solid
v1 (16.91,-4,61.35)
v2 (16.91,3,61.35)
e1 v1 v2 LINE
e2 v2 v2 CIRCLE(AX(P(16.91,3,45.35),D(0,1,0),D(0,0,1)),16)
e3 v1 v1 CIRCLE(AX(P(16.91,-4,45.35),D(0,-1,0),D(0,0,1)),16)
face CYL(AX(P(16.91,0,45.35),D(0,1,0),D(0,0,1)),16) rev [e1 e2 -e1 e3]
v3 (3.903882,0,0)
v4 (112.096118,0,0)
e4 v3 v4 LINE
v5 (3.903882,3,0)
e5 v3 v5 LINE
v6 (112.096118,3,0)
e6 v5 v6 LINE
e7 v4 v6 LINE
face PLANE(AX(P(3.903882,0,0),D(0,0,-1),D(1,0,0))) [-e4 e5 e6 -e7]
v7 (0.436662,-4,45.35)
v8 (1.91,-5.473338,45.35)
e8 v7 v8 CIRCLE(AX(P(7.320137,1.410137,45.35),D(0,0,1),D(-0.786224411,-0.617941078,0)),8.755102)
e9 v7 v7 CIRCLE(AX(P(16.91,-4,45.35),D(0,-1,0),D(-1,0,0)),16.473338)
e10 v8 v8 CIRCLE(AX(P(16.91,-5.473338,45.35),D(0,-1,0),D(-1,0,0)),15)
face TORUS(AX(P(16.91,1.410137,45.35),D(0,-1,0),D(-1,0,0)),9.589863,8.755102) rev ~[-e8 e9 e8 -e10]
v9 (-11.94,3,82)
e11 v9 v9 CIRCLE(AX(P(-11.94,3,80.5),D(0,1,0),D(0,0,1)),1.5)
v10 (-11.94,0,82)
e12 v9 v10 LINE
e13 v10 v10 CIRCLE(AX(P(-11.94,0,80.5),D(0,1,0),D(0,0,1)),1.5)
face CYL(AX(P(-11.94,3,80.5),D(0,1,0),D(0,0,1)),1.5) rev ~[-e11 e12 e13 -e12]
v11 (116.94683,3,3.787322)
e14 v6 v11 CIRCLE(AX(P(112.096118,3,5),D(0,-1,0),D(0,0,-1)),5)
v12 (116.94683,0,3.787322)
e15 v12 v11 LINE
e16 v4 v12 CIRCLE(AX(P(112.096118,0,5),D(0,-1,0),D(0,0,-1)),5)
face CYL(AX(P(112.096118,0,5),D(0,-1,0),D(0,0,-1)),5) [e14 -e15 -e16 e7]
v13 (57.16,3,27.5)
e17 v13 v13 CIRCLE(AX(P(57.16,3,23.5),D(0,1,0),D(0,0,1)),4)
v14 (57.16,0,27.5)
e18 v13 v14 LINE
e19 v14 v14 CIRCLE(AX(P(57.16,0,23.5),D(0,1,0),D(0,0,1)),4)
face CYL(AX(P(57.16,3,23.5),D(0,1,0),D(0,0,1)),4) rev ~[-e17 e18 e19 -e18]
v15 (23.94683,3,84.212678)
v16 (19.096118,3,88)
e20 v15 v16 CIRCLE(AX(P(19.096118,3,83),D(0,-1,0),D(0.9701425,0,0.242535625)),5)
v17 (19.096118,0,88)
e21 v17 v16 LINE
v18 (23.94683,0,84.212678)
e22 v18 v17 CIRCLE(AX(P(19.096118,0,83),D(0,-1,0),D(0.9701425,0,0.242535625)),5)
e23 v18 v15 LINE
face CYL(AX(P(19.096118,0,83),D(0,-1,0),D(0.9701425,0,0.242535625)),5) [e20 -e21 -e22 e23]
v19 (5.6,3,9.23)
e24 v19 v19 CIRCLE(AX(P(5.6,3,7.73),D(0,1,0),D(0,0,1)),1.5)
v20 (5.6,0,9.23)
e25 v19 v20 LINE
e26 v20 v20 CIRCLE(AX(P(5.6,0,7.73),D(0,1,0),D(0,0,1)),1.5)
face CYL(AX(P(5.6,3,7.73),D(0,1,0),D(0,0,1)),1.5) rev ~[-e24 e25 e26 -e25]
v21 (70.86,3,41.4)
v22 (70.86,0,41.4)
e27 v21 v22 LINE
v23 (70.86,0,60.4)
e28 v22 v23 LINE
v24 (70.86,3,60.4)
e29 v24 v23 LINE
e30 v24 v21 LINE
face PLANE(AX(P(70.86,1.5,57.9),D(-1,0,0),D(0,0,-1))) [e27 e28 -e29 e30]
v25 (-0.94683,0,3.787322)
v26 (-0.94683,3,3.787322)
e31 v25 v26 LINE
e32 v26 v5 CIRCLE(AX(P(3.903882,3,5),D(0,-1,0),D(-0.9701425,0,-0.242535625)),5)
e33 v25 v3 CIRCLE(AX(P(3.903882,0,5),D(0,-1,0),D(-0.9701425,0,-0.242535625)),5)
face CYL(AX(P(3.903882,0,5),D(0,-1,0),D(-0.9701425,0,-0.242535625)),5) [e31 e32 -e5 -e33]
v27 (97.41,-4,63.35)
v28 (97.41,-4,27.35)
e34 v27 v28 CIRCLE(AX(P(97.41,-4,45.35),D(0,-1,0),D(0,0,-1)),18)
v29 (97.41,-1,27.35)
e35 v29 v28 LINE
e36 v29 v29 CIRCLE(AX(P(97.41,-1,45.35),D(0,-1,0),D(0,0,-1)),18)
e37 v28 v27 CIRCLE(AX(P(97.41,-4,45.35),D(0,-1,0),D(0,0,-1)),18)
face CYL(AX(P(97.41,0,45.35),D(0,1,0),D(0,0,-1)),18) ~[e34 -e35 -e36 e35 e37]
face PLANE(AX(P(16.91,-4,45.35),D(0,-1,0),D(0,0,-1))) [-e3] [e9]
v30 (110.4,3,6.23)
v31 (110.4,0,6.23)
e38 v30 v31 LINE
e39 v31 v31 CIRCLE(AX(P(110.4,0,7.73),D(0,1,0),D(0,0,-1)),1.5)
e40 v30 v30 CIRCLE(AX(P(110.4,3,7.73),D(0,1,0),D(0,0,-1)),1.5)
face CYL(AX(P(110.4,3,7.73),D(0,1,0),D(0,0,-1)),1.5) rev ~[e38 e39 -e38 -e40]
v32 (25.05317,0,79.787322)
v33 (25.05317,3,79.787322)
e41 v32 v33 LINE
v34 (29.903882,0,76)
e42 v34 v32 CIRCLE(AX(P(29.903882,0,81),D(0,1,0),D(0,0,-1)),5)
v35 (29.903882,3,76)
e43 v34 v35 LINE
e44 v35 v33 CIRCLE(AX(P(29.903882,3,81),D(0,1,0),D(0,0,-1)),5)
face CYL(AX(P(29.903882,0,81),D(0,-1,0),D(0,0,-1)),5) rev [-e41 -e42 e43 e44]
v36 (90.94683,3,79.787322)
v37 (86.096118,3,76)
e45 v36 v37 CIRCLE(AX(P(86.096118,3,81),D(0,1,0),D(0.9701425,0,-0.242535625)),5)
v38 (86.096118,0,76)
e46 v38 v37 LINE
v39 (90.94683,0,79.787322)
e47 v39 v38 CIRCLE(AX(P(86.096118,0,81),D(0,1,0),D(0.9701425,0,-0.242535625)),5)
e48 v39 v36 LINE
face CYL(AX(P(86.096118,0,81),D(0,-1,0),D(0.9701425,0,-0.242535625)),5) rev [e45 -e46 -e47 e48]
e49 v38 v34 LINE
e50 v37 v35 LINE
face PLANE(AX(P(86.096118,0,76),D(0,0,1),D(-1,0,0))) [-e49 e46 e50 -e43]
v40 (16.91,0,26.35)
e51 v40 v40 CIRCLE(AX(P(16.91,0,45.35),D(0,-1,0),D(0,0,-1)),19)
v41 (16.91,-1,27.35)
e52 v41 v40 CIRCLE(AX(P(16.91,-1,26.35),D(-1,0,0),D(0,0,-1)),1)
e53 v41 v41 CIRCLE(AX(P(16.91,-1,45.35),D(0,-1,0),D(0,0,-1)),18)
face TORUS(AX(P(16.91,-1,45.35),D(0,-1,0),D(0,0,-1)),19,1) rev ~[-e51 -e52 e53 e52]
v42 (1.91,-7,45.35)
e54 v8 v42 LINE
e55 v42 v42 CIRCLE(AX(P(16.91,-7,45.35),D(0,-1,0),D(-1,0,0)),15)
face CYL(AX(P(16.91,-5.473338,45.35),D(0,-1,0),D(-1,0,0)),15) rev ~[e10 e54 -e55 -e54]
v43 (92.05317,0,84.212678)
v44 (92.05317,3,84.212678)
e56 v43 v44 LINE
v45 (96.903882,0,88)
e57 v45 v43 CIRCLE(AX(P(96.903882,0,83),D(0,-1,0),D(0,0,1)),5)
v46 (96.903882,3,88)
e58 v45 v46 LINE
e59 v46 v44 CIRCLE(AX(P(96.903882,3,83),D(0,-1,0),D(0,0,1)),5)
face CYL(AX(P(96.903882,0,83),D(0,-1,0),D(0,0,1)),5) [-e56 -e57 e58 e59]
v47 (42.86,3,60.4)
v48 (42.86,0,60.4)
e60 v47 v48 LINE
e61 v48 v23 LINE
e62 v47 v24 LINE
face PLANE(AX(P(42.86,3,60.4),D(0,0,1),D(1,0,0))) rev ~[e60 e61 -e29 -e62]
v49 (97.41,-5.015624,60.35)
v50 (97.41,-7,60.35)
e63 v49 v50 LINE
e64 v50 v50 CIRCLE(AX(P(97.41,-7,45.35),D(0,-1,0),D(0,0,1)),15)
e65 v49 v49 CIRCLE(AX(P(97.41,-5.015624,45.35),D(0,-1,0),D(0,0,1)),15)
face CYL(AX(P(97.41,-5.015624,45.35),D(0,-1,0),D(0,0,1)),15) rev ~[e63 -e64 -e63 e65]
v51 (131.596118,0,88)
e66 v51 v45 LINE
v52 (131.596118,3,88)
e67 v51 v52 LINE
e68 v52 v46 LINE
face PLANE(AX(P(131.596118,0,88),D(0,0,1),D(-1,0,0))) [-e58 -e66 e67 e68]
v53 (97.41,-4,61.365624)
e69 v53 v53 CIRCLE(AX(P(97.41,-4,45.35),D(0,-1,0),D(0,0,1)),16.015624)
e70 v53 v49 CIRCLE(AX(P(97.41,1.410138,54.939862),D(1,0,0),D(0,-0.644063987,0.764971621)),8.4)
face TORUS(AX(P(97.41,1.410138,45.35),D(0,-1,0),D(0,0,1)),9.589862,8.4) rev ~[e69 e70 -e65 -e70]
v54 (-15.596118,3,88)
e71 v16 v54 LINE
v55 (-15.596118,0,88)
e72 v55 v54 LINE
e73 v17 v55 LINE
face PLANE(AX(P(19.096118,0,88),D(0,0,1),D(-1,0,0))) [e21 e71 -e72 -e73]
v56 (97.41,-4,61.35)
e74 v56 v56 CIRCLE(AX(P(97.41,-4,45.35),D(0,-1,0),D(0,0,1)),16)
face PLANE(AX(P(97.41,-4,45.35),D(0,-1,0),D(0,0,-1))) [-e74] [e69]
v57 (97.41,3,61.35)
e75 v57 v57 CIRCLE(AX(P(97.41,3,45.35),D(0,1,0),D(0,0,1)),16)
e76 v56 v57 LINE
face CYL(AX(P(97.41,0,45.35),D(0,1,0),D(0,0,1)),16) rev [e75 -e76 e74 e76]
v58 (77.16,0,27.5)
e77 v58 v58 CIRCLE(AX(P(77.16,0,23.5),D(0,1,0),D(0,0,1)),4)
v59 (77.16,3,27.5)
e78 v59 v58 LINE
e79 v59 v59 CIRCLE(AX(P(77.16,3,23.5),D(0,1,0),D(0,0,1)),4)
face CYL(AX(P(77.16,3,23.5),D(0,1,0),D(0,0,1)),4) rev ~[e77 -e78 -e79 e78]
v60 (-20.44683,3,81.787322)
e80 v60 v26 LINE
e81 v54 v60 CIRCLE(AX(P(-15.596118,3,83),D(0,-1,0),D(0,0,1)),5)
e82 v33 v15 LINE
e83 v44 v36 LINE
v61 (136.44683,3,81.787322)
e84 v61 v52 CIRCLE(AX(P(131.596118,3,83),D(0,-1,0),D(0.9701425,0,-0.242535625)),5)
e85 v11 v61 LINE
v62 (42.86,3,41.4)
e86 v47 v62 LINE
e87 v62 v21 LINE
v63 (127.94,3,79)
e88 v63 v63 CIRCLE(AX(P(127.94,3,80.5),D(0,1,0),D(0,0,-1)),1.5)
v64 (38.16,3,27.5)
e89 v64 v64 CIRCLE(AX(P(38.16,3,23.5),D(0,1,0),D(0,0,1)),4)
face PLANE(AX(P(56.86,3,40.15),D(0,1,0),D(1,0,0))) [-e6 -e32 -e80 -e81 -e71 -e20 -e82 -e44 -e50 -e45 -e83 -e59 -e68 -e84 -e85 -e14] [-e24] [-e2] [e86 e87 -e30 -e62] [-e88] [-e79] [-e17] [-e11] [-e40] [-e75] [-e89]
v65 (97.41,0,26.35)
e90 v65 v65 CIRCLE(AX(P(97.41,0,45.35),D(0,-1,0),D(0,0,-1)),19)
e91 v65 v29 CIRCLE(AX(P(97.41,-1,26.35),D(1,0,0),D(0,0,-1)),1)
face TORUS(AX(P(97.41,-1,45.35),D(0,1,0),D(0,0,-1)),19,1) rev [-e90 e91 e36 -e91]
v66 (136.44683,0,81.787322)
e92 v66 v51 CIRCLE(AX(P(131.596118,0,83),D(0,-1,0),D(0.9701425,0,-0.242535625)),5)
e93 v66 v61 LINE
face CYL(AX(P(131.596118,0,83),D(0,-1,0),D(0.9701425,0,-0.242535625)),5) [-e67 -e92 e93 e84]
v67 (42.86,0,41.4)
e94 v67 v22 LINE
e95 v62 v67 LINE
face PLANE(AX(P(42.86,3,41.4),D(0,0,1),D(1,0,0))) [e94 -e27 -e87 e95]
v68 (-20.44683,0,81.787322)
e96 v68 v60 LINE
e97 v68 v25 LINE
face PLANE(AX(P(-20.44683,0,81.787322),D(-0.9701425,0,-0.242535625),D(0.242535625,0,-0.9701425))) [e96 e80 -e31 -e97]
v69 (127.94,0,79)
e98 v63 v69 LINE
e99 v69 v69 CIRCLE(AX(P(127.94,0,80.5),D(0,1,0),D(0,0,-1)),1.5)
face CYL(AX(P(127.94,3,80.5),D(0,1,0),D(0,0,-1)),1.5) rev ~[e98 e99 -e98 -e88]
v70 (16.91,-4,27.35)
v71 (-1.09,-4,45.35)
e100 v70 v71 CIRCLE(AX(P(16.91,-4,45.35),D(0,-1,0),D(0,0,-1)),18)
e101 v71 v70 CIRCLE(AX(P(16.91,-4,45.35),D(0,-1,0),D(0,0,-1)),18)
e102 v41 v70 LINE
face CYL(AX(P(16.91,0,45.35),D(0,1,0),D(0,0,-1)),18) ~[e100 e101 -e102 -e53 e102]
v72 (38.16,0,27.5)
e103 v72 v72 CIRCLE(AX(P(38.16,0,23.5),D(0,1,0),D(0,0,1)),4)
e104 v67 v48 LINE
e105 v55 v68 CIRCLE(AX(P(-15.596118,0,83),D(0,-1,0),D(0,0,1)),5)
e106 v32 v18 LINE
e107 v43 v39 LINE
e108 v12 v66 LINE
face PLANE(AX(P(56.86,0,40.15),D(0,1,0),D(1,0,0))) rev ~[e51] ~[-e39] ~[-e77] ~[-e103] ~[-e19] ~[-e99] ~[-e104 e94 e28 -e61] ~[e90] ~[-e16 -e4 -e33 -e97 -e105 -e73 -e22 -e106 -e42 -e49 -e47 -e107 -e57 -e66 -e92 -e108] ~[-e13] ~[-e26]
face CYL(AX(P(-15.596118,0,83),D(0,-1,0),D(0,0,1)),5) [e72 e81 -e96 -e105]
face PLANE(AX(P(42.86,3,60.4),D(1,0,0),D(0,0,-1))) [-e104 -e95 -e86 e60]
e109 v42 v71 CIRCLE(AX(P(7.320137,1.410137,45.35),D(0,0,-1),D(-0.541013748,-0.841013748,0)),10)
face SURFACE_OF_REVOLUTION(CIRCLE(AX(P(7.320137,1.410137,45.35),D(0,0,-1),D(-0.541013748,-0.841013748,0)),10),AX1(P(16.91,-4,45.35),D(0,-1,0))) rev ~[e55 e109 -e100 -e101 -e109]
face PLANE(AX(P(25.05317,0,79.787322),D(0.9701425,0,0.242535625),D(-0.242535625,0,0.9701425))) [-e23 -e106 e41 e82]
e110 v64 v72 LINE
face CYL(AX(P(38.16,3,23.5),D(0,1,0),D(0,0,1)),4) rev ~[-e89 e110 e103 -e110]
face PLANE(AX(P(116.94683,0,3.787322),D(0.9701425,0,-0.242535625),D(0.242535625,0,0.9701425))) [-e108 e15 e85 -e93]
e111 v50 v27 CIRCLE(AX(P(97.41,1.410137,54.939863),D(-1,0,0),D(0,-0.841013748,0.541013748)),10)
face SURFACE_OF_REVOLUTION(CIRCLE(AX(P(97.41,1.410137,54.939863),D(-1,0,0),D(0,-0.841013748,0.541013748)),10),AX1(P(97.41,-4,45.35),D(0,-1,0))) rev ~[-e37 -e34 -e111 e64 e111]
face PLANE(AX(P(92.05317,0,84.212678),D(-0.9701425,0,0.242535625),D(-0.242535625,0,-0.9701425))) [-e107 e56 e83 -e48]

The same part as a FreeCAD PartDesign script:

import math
import FreeCAD as App
import Part
import Sketcher

V = App.Vector
Q = App.Units.Quantity


def edges_at(feature, points):
    """Names of the edges that pass closest to the given points."""
    edges = feature.Shape.Edges
    near = lambda p: min(range(len(edges)), key=lambda i: edges[i].distToShape(Part.Vertex(*p))[0])
    return sorted({f"Edge{near(p) + 1}" for p in points})

doc = App.newDocument("Part")
body = doc.addObject("PartDesign::Body", "Body")

# Sketch on XZ plane
sketch1 = body.newObject("Sketcher::SketchObject", "Sketch")
sketch1.AttachmentSupport = (doc.getObject("XZ_Plane"), [""])
sketch1.MapMode = "FlatFace"
sketch1.addGeometry(Part.LineSegment(V(112.1, 0, 0), V(3.9, 0, 0)), False)
sketch1.addGeometry(Part.ArcOfCircle(Part.Circle(V(3.9, 5, 0), V(0, 0, 1), 5), math.radians(-166), math.radians(-90)), False)
sketch1.addGeometry(Part.LineSegment(V(-0.9, 3.8, 0), V(-20.4, 81.8, 0)), False)
sketch1.addGeometry(Part.ArcOfCircle(Part.Circle(V(-15.6, 83, 0), V(0, 0, 1), 5), math.radians(90), math.radians(194)), False)
sketch1.addGeometry(Part.LineSegment(V(-15.6, 88, 0), V(19.1, 88, 0)), False)
sketch1.addGeometry(Part.ArcOfCircle(Part.Circle(V(19.1, 83, 0), V(0, 0, 1), 5), math.radians(14), math.radians(90)), False)
sketch1.addGeometry(Part.LineSegment(V(23.9, 84.2, 0), V(25.1, 79.8, 0)), False)
sketch1.addGeometry(Part.ArcOfCircle(Part.Circle(V(29.9, 81, 0), V(0, 0, 1), 5), math.radians(-166), math.radians(-90)), False)
sketch1.addGeometry(Part.LineSegment(V(29.9, 76, 0), V(86.1, 76, 0)), False)
sketch1.addGeometry(Part.ArcOfCircle(Part.Circle(V(86.1, 81, 0), V(0, 0, 1), 5), math.radians(-90), math.radians(-14)), False)
sketch1.addGeometry(Part.LineSegment(V(90.9, 79.8, 0), V(92.1, 84.2, 0)), False)
sketch1.addGeometry(Part.ArcOfCircle(Part.Circle(V(96.9, 83, 0), V(0, 0, 1), 5), math.radians(90), math.radians(166)), False)
sketch1.addGeometry(Part.LineSegment(V(96.9, 88, 0), V(131.6, 88, 0)), False)
sketch1.addGeometry(Part.ArcOfCircle(Part.Circle(V(131.6, 83, 0), V(0, 0, 1), 5), math.radians(-14), math.radians(90)), False)
sketch1.addGeometry(Part.LineSegment(V(136.4, 81.8, 0), V(116.9, 3.8, 0)), False)
sketch1.addGeometry(Part.ArcOfCircle(Part.Circle(V(112.1, 5, 0), V(0, 0, 1), 5), math.radians(-90), math.radians(-14)), False)
sketch1.addConstraint(Sketcher.Constraint("Tangent", 0, 2, 1, 2))
sketch1.addConstraint(Sketcher.Constraint("Tangent", 1, 1, 2, 1))
sketch1.addConstraint(Sketcher.Constraint("Tangent", 2, 2, 3, 2))
sketch1.addConstraint(Sketcher.Constraint("Tangent", 3, 1, 4, 1))
sketch1.addConstraint(Sketcher.Constraint("Tangent", 4, 2, 5, 2))
sketch1.addConstraint(Sketcher.Constraint("Tangent", 5, 1, 6, 1))
sketch1.addConstraint(Sketcher.Constraint("Tangent", 6, 2, 7, 1))
sketch1.addConstraint(Sketcher.Constraint("Tangent", 7, 2, 8, 1))
sketch1.addConstraint(Sketcher.Constraint("Tangent", 8, 2, 9, 1))
sketch1.addConstraint(Sketcher.Constraint("Tangent", 9, 2, 10, 1))
sketch1.addConstraint(Sketcher.Constraint("Tangent", 10, 2, 11, 2))
sketch1.addConstraint(Sketcher.Constraint("Tangent", 11, 1, 12, 1))
sketch1.addConstraint(Sketcher.Constraint("Tangent", 12, 2, 13, 2))
sketch1.addConstraint(Sketcher.Constraint("Tangent", 13, 1, 14, 1))
sketch1.addConstraint(Sketcher.Constraint("Tangent", 14, 2, 15, 2))
sketch1.addConstraint(Sketcher.Constraint("Tangent", 15, 1, 0, 1))
sketch1.addConstraint(Sketcher.Constraint("Horizontal", 0))
sketch1.addConstraint(Sketcher.Constraint("Horizontal", 4))
sketch1.addConstraint(Sketcher.Constraint("Horizontal", 8))
sketch1.addConstraint(Sketcher.Constraint("Horizontal", 12))
sketch1.addConstraint(Sketcher.Constraint("Equal", 1, 3))
sketch1.addConstraint(Sketcher.Constraint("Equal", 3, 5))
sketch1.addConstraint(Sketcher.Constraint("Equal", 5, 7))
sketch1.addConstraint(Sketcher.Constraint("Equal", 7, 9))
sketch1.addConstraint(Sketcher.Constraint("Equal", 9, 11))
sketch1.addConstraint(Sketcher.Constraint("Equal", 11, 13))
sketch1.addConstraint(Sketcher.Constraint("Equal", 13, 15))
sketch1.addConstraint(Sketcher.Constraint("PointOnObject", 0, 2, -1))
sketch1.addConstraint(Sketcher.Constraint("Parallel", 2, 6))
sketch1.addConstraint(Sketcher.Constraint("Parallel", 10, 14))
sketch1.addConstraint(Sketcher.Constraint("Horizontal", 5, 3, 11, 3))
sketch1.addConstraint(Sketcher.Constraint("Horizontal", 6, 2, 9, 2))
sketch1.addConstraint(Sketcher.Constraint("Equal", 4, 12))
sketch1.addConstraint(Sketcher.Constraint("Radius", 1, Q("5 mm")))
sketch1.addConstraint(Sketcher.Constraint("DistanceY", -1, 1, 3, 3, Q("83 mm")))
sketch1.addConstraint(Sketcher.Constraint("DistanceY", -1, 1, 7, 3, Q("81 mm")))
sketch1.addConstraint(Sketcher.Constraint("DistanceX", 1, 3, 7, 3, Q("26 mm")))
sketch1.addConstraint(Sketcher.Constraint("DistanceX", 5, 3, 9, 3, Q("67 mm")))
sketch1.addConstraint(Sketcher.Constraint("DistanceX", 3, 3, 1, 3, Q("19.5 mm")))
sketch1.addConstraint(Sketcher.Constraint("DistanceX", 1, 1, -1, 1, Q("0.94683 mm")))
pad1 = body.newObject("PartDesign::Pad", "Pad")
pad1.Profile = sketch1
pad1.Length = 3
pad1.Reversed = True

# Sketch on XZ plane
sketch2 = body.newObject("Sketcher::SketchObject", "Sketch001")
sketch2.AttachmentSupport = (doc.getObject("XZ_Plane"), [""])
sketch2.MapMode = "FlatFace"
sketch2.AttachmentOffset = App.Placement(V(0, 0, -3), App.Rotation())
sketch2.addGeometry(Part.Circle(V(17, 45, 0), V(0, 0, 1), 16), False)
sketch2.addGeometry(Part.Circle(V(97, 45, 0), V(0, 0, 1), 16), False)
sketch2.addConstraint(Sketcher.Constraint("Equal", 0, 1))
sketch2.addConstraint(Sketcher.Constraint("Horizontal", 0, 3, 1, 3))
sketch2.addConstraint(Sketcher.Constraint("Diameter", 0, Q("32 mm")))
sketch2.addConstraint(Sketcher.Constraint("DistanceX", 0, 3, 1, 3, Q("80.5 mm")))
sketch2.addConstraint(Sketcher.Constraint("DistanceX", -1, 1, 0, 3, Q("16.91 mm")))
sketch2.addConstraint(Sketcher.Constraint("DistanceY", -1, 1, 0, 3, Q("45.35 mm")))
pocket1 = body.newObject("PartDesign::Pocket", "Pocket")
pocket1.Profile = sketch2
pocket1.Length = 10
pocket1.Reversed = True

# Sketch on XZ plane
sketch3 = body.newObject("Sketcher::SketchObject", "Sketch002")
sketch3.AttachmentSupport = (doc.getObject("XZ_Plane"), [""])
sketch3.MapMode = "FlatFace"
sketch3.AttachmentOffset = App.Placement(V(0, 0, -3), App.Rotation())
sketch3.addGeometry(Part.Circle(V(5.6, 7.7, 0), V(0, 0, 1), 1.5), False)
sketch3.addGeometry(Part.Circle(V(-11.9, 80.5, 0), V(0, 0, 1), 1.5), False)
sketch3.addGeometry(Part.Circle(V(127.9, 80.5, 0), V(0, 0, 1), 1.5), False)
sketch3.addGeometry(Part.Circle(V(110.4, 7.7, 0), V(0, 0, 1), 1.5), False)
sketch3.addConstraint(Sketcher.Constraint("Equal", 0, 1))
sketch3.addConstraint(Sketcher.Constraint("Equal", 1, 2))
sketch3.addConstraint(Sketcher.Constraint("Equal", 2, 3))
sketch3.addConstraint(Sketcher.Constraint("Horizontal", 1, 3, 2, 3))
sketch3.addConstraint(Sketcher.Constraint("Horizontal", 0, 3, 3, 3))
sketch3.addConstraint(Sketcher.Constraint("Diameter", 0, Q("3 mm")))
sketch3.addConstraint(Sketcher.Constraint("DistanceX", -1, 1, 0, 3, Q("5.6 mm")))
sketch3.addConstraint(Sketcher.Constraint("DistanceY", -1, 1, 1, 3, Q("80.5 mm")))
sketch3.addConstraint(Sketcher.Constraint("DistanceX", -1, 1, 3, 3, Q("110.4 mm")))
sketch3.addConstraint(Sketcher.Constraint("DistanceY", -1, 1, 0, 3, Q("7.73 mm")))
sketch3.addConstraint(Sketcher.Constraint("DistanceX", 1, 3, -1, 1, Q("11.94 mm")))
sketch3.addConstraint(Sketcher.Constraint("DistanceX", -1, 1, 2, 3, Q("127.94 mm")))
pocket2 = body.newObject("PartDesign::Pocket", "Pocket001")
pocket2.Profile = sketch3
pocket2.Length = 10
pocket2.Reversed = True

# Sketch on XZ plane
sketch4 = body.newObject("Sketcher::SketchObject", "Sketch003")
sketch4.AttachmentSupport = (doc.getObject("XZ_Plane"), [""])
sketch4.MapMode = "FlatFace"
sketch4.AttachmentOffset = App.Placement(V(0, 0, -3), App.Rotation())
sketch4.addGeometry(Part.Circle(V(38.2, 23.5, 0), V(0, 0, 1), 4), False)
sketch4.addGeometry(Part.Circle(V(57.2, 23.5, 0), V(0, 0, 1), 4), False)
sketch4.addGeometry(Part.Circle(V(77.2, 23.5, 0), V(0, 0, 1), 4), False)
sketch4.addConstraint(Sketcher.Constraint("Equal", 0, 1))
sketch4.addConstraint(Sketcher.Constraint("Equal", 1, 2))
sketch4.addConstraint(Sketcher.Constraint("Horizontal", 0, 3, 1, 3))
sketch4.addConstraint(Sketcher.Constraint("Horizontal", 1, 3, 2, 3))
sketch4.addConstraint(Sketcher.Constraint("Diameter", 0, Q("8 mm")))
sketch4.addConstraint(Sketcher.Constraint("DistanceX", 0, 3, 1, 3, Q("19 mm")))
sketch4.addConstraint(Sketcher.Constraint("DistanceX", 1, 3, 2, 3, Q("20 mm")))
sketch4.addConstraint(Sketcher.Constraint("DistanceY", -1, 1, 0, 3, Q("23.5 mm")))
sketch4.addConstraint(Sketcher.Constraint("DistanceX", -1, 1, 0, 3, Q("38.16 mm")))
pocket3 = body.newObject("PartDesign::Pocket", "Pocket002")
pocket3.Profile = sketch4
pocket3.Length = 10
pocket3.Reversed = True

# Sketch on XZ plane
sketch5 = body.newObject("Sketcher::SketchObject", "Sketch004")
sketch5.AttachmentSupport = (doc.getObject("XZ_Plane"), [""])
sketch5.MapMode = "FlatFace"
sketch5.AttachmentOffset = App.Placement(V(0, 0, -3), App.Rotation())
sketch5.addGeometry(Part.LineSegment(V(43, 41, 0), V(43, 64, 0)), False)
sketch5.addGeometry(Part.LineSegment(V(43, 64, 0), V(71, 64, 0)), False)
sketch5.addGeometry(Part.LineSegment(V(71, 64, 0), V(71, 41, 0)), False)
sketch5.addGeometry(Part.LineSegment(V(71, 41, 0), V(43, 41, 0)), False)
sketch5.addConstraint(Sketcher.Constraint("Coincident", 0, 2, 1, 1))
sketch5.addConstraint(Sketcher.Constraint("Coincident", 1, 2, 2, 1))
sketch5.addConstraint(Sketcher.Constraint("Coincident", 2, 2, 3, 1))
sketch5.addConstraint(Sketcher.Constraint("Coincident", 3, 2, 0, 1))
sketch5.addConstraint(Sketcher.Constraint("Vertical", 0))
sketch5.addConstraint(Sketcher.Constraint("Horizontal", 1))
sketch5.addConstraint(Sketcher.Constraint("Vertical", 2))
sketch5.addConstraint(Sketcher.Constraint("Horizontal", 3))
sketch5.addConstraint(Sketcher.Constraint("DistanceX", 1, 1, 1, 2, Q("28 mm")))
sketch5.addConstraint(Sketcher.Constraint("DistanceY", 0, 1, 0, 2, Q("23 mm")))
sketch5.addConstraint(Sketcher.Constraint("DistanceY", -1, 1, 0, 2, Q("63.8 mm")))
sketch5.addConstraint(Sketcher.Constraint("DistanceX", -1, 1, 0, 2, Q("43.16 mm")))
pocket4 = body.newObject("PartDesign::Pocket", "Pocket003")
pocket4.Profile = sketch5
pocket4.Length = 10
pocket4.Reversed = True

# Sketch on XZ plane
sketch6 = body.newObject("Sketcher::SketchObject", "Sketch005")
sketch6.AttachmentSupport = (doc.getObject("XZ_Plane"), [""])
sketch6.MapMode = "FlatFace"
sketch6.AttachmentOffset = App.Placement(V(0, 0, -3), App.Rotation())
sketch6.addGeometry(Part.LineSegment(V(41, 37, 0), V(41, 68, 0)), False)
sketch6.addGeometry(Part.LineSegment(V(41, 68, 0), V(74, 68, 0)), False)
sketch6.addGeometry(Part.LineSegment(V(74, 68, 0), V(74, 37, 0)), False)
sketch6.addGeometry(Part.LineSegment(V(74, 37, 0), V(41, 37, 0)), False)
sketch6.addConstraint(Sketcher.Constraint("Coincident", 0, 2, 1, 1))
sketch6.addConstraint(Sketcher.Constraint("Coincident", 1, 2, 2, 1))
sketch6.addConstraint(Sketcher.Constraint("Coincident", 2, 2, 3, 1))
sketch6.addConstraint(Sketcher.Constraint("Coincident", 3, 2, 0, 1))
sketch6.addConstraint(Sketcher.Constraint("Vertical", 0))
sketch6.addConstraint(Sketcher.Constraint("Horizontal", 1))
sketch6.addConstraint(Sketcher.Constraint("Vertical", 2))
sketch6.addConstraint(Sketcher.Constraint("Horizontal", 3))
sketch6.addConstraint(Sketcher.Constraint("DistanceX", 1, 1, 1, 2, Q("33 mm")))
sketch6.addConstraint(Sketcher.Constraint("DistanceY", 0, 1, 0, 2, Q("31 mm")))
sketch6.addConstraint(Sketcher.Constraint("DistanceY", -1, 1, 0, 2, Q("67.8 mm")))
sketch6.addConstraint(Sketcher.Constraint("DistanceX", -1, 1, 0, 2, Q("40.66 mm")))
pocket5 = body.newObject("PartDesign::Pocket", "Pocket004")
pocket5.Profile = sketch6
pocket5.Length = 1.5
pocket5.Reversed = True

# Sketch on XZ plane
sketch7 = body.newObject("Sketcher::SketchObject", "Sketch006")
sketch7.AttachmentSupport = (doc.getObject("XZ_Plane"), [""])
sketch7.MapMode = "FlatFace"
sketch7.addGeometry(Part.Circle(V(97, 45, 0), V(0, 0, 1), 18), False)
sketch7.addGeometry(Part.Circle(V(97, 45, 0), V(0, 0, 1), 16), False)
sketch7.addGeometry(Part.Circle(V(17, 45, 0), V(0, 0, 1), 18), False)
sketch7.addGeometry(Part.Circle(V(17, 45, 0), V(0, 0, 1), 16), False)
sketch7.addConstraint(Sketcher.Constraint("Coincident", 1, 3, 0, 3))
sketch7.addConstraint(Sketcher.Constraint("Coincident", 3, 3, 2, 3))
sketch7.addConstraint(Sketcher.Constraint("Equal", 0, 2))
sketch7.addConstraint(Sketcher.Constraint("Equal", 1, 3))
sketch7.addConstraint(Sketcher.Constraint("Horizontal", 1, 3, 2, 3))
sketch7.addConstraint(Sketcher.Constraint("Diameter", 0, Q("36 mm")))
sketch7.addConstraint(Sketcher.Constraint("Diameter", 1, Q("32 mm")))
sketch7.addConstraint(Sketcher.Constraint("DistanceX", 2, 3, 0, 3, Q("80.5 mm")))
sketch7.addConstraint(Sketcher.Constraint("DistanceX", -1, 1, 0, 3, Q("97.41 mm")))
sketch7.addConstraint(Sketcher.Constraint("DistanceY", -1, 1, 0, 3, Q("45.35 mm")))
pad2 = body.newObject("PartDesign::Pad", "Pad001")
pad2.Profile = sketch7
pad2.Length = 4

# Sketch on XY plane
sketch8 = body.newObject("Sketcher::SketchObject", "Sketch007")
sketch8.AttachmentSupport = (doc.getObject("XY_Plane"), [""])
sketch8.MapMode = "FlatFace"
sketch8.AttachmentOffset = App.Placement(V(0, 0, 45.35), App.Rotation())
sketch8.addGeometry(Part.LineSegment(V(112.4, -5, 0), V(112.4, -7, 0)), False)
sketch8.addGeometry(Part.ArcOfCircle(Part.Circle(V(107, 1.4, 0), V(0, 0, 1), 10), math.radians(-57), math.radians(-33)), False)
sketch8.addGeometry(Part.LineSegment(V(115.4, -4, 0), V(113.4, -4, 0)), False)
sketch8.addGeometry(Part.ArcOfCircle(Part.Circle(V(107, 1.4, 0), V(0, 0, 1), 8.4), math.radians(-49.9), math.radians(-40.1)), False)
sketch8.addGeometry(Part.LineSegment(V(97.4, 1.4, 0), V(97.4, -7, 0)), True)  # axis
sketch8.addConstraint(Sketcher.Constraint("Coincident", 0, 2, 1, 1))
sketch8.addConstraint(Sketcher.Constraint("Coincident", 1, 2, 2, 1))
sketch8.addConstraint(Sketcher.Constraint("Coincident", 2, 2, 3, 2))
sketch8.addConstraint(Sketcher.Constraint("Coincident", 3, 1, 0, 1))
sketch8.addConstraint(Sketcher.Constraint("Vertical", 0))
sketch8.addConstraint(Sketcher.Constraint("Horizontal", 2))
sketch8.addConstraint(Sketcher.Constraint("Vertical", 4))
sketch8.addConstraint(Sketcher.Constraint("Coincident", 3, 3, 1, 3))
sketch8.addConstraint(Sketcher.Constraint("Horizontal", 3, 3, 4, 1))
sketch8.addConstraint(Sketcher.Constraint("Horizontal", 0, 2, 4, 2))
sketch8.addConstraint(Sketcher.Constraint("Equal", 2, 0))
sketch8.addConstraint(Sketcher.Constraint("Radius", 1, Q("10 mm")))
sketch8.addConstraint(Sketcher.Constraint("Radius", 3, Q("8.4 mm")))
sketch8.addConstraint(Sketcher.Constraint("DistanceY", 0, 2, -1, 1, Q("7 mm")))
sketch8.addConstraint(Sketcher.Constraint("DistanceY", 1, 2, -1, 1, Q("4 mm")))
sketch8.addConstraint(Sketcher.Constraint("DistanceX", 4, 1, 3, 1, Q("15 mm")))
sketch8.addConstraint(Sketcher.Constraint("DistanceX", -1, 1, 0, 2, Q("112.41 mm")))
revolution = body.newObject("PartDesign::Revolution", "Revolution")
revolution.Profile = sketch8
revolution.ReferenceAxis = (sketch8, ["Axis0"])
revolution.Angle = 360

# Sketch on XY plane
sketch9 = body.newObject("Sketcher::SketchObject", "Sketch008")
sketch9.AttachmentSupport = (doc.getObject("XY_Plane"), [""])
sketch9.MapMode = "FlatFace"
sketch9.AttachmentOffset = App.Placement(V(0, 0, 45.35), App.Rotation())
sketch9.addGeometry(Part.LineSegment(V(31.9, -5.5, 0), V(31.9, -7, 0)), False)
sketch9.addGeometry(Part.ArcOfCircle(Part.Circle(V(26.5, 1.4, 0), V(0, 0, 1), 10), math.radians(-57), math.radians(-33)), False)
sketch9.addGeometry(Part.LineSegment(V(34.9, -4, 0), V(33.4, -4, 0)), False)
sketch9.addGeometry(Part.ArcOfCircle(Part.Circle(V(26.5, 1.4, 0), V(0, 0, 1), 8.8), math.radians(-51.83), math.radians(-38.17)), False)
sketch9.addGeometry(Part.LineSegment(V(16.9, 1.4, 0), V(16.9, -7, 0)), True)  # axis
sketch9.addConstraint(Sketcher.Constraint("Coincident", 0, 2, 1, 1))
sketch9.addConstraint(Sketcher.Constraint("Coincident", 1, 2, 2, 1))
sketch9.addConstraint(Sketcher.Constraint("Coincident", 2, 2, 3, 2))
sketch9.addConstraint(Sketcher.Constraint("Coincident", 3, 1, 0, 1))
sketch9.addConstraint(Sketcher.Constraint("Vertical", 0))
sketch9.addConstraint(Sketcher.Constraint("Horizontal", 2))
sketch9.addConstraint(Sketcher.Constraint("Vertical", 4))
sketch9.addConstraint(Sketcher.Constraint("Coincident", 3, 3, 1, 3))
sketch9.addConstraint(Sketcher.Constraint("Horizontal", 3, 3, 4, 1))
sketch9.addConstraint(Sketcher.Constraint("Horizontal", 0, 2, 4, 2))
sketch9.addConstraint(Sketcher.Constraint("Equal", 2, 0))
sketch9.addConstraint(Sketcher.Constraint("Radius", 1, Q("10 mm")))
sketch9.addConstraint(Sketcher.Constraint("DistanceY", 0, 2, -1, 1, Q("7 mm")))
sketch9.addConstraint(Sketcher.Constraint("DistanceY", 1, 2, -1, 1, Q("4 mm")))
sketch9.addConstraint(Sketcher.Constraint("DistanceX", 4, 1, 3, 1, Q("15 mm")))
sketch9.addConstraint(Sketcher.Constraint("DistanceX", -1, 1, 0, 2, Q("31.91 mm")))
sketch9.addConstraint(Sketcher.Constraint("Radius", 3, Q("8.755102 mm")))
revolution2 = body.newObject("PartDesign::Revolution", "Revolution001")
revolution2.Profile = sketch9
revolution2.ReferenceAxis = (sketch9, ["Axis0"])
revolution2.Angle = 360
doc.recompute()

fillet = body.newObject("PartDesign::Fillet", "Fillet")
fillet.Base = (revolution2, edges_at(revolution2, [(97.41, 0, 63.35), (16.91, 0, 63.35)]))
fillet.Radius = 1

# Sketch on XZ plane
sketch10 = body.newObject("Sketcher::SketchObject", "Sketch009")
sketch10.AttachmentSupport = (doc.getObject("XZ_Plane"), [""])
sketch10.MapMode = "FlatFace"
sketch10.AttachmentOffset = App.Placement(V(0, 0, -1.5), App.Rotation())
sketch10.addGeometry(Part.LineSegment(V(70.4, 56.3, 0), V(70.4, 40.8, 0)), False)
sketch10.addGeometry(Part.LineSegment(V(70.4, 40.8, 0), V(71.2, 40.8, 0)), False)
sketch10.addGeometry(Part.LineSegment(V(71.2, 40.8, 0), V(71.2, 63.8, 0)), False)
sketch10.addGeometry(Part.LineSegment(V(71.2, 63.8, 0), V(43.2, 63.8, 0)), False)
sketch10.addGeometry(Part.LineSegment(V(43.2, 63.8, 0), V(43.2, 56.3, 0)), False)
sketch10.addGeometry(Part.LineSegment(V(43.2, 56.3, 0), V(70.4, 56.3, 0)), False)
sketch10.addConstraint(Sketcher.Constraint("Coincident", 0, 2, 1, 1))
sketch10.addConstraint(Sketcher.Constraint("Coincident", 1, 2, 2, 1))
sketch10.addConstraint(Sketcher.Constraint("Coincident", 2, 2, 3, 1))
sketch10.addConstraint(Sketcher.Constraint("Coincident", 3, 2, 4, 1))
sketch10.addConstraint(Sketcher.Constraint("Coincident", 4, 2, 5, 1))
sketch10.addConstraint(Sketcher.Constraint("Coincident", 5, 2, 0, 1))
sketch10.addConstraint(Sketcher.Constraint("Vertical", 0))
sketch10.addConstraint(Sketcher.Constraint("Horizontal", 1))
sketch10.addConstraint(Sketcher.Constraint("Vertical", 2))
sketch10.addConstraint(Sketcher.Constraint("Horizontal", 3))
sketch10.addConstraint(Sketcher.Constraint("Vertical", 4))
sketch10.addConstraint(Sketcher.Constraint("Horizontal", 5))
sketch10.addConstraint(Sketcher.Constraint("DistanceX", 3, 2, 3, 1, Q("28 mm")))
sketch10.addConstraint(Sketcher.Constraint("DistanceY", 2, 1, 2, 2, Q("23 mm")))
sketch10.addConstraint(Sketcher.Constraint("DistanceX", 1, 1, 1, 2, Q("0.8 mm")))
sketch10.addConstraint(Sketcher.Constraint("DistanceY", 0, 2, 0, 1, Q("15.5 mm")))
sketch10.addConstraint(Sketcher.Constraint("DistanceY", -1, 1, 0, 2, Q("40.8 mm")))
sketch10.addConstraint(Sketcher.Constraint("DistanceX", -1, 1, 0, 2, Q("70.36 mm")))
pad3 = body.newObject("PartDesign::Pad", "Pad002")
pad3.Profile = sketch10
pad3.Length = 1.5

# Sketch on XZ plane
sketch11 = body.newObject("Sketcher::SketchObject", "Sketch010")
sketch11.AttachmentSupport = (doc.getObject("XZ_Plane"), [""])
sketch11.MapMode = "FlatFace"
sketch11.addGeometry(Part.LineSegment(V(42.86, 56.3, 0), V(42.86, 40.5, 0)), False)
sketch11.addGeometry(Part.LineSegment(V(42.86, 40.5, 0), V(70.36, 40.5, 0)), False)
sketch11.addGeometry(Part.LineSegment(V(70.36, 40.5, 0), V(70.36, 40.8, 0)), False)
sketch11.addGeometry(Part.LineSegment(V(70.36, 40.8, 0), V(43.16, 40.8, 0)), False)
sketch11.addGeometry(Part.LineSegment(V(43.16, 40.8, 0), V(43.16, 56.3, 0)), False)
sketch11.addGeometry(Part.LineSegment(V(43.16, 56.3, 0), V(42.86, 56.3, 0)), False)
sketch11.addConstraint(Sketcher.Constraint("Coincident", 0, 2, 1, 1))
sketch11.addConstraint(Sketcher.Constraint("Coincident", 1, 2, 2, 1))
sketch11.addConstraint(Sketcher.Constraint("Coincident", 2, 2, 3, 1))
sketch11.addConstraint(Sketcher.Constraint("Coincident", 3, 2, 4, 1))
sketch11.addConstraint(Sketcher.Constraint("Coincident", 4, 2, 5, 1))
sketch11.addConstraint(Sketcher.Constraint("Coincident", 5, 2, 0, 1))
sketch11.addConstraint(Sketcher.Constraint("Vertical", 0))
sketch11.addConstraint(Sketcher.Constraint("Horizontal", 1))
sketch11.addConstraint(Sketcher.Constraint("Vertical", 2))
sketch11.addConstraint(Sketcher.Constraint("Horizontal", 3))
sketch11.addConstraint(Sketcher.Constraint("Vertical", 4))
sketch11.addConstraint(Sketcher.Constraint("Horizontal", 5))
sketch11.addConstraint(Sketcher.Constraint("Equal", 5, 2))
sketch11.addConstraint(Sketcher.Constraint("DistanceX", 1, 1, 1, 2, Q("27.5 mm")))
sketch11.addConstraint(Sketcher.Constraint("DistanceX", 3, 2, 3, 1, Q("27.2 mm")))
sketch11.addConstraint(Sketcher.Constraint("DistanceY", 0, 2, 0, 1, Q("15.8 mm")))
sketch11.addConstraint(Sketcher.Constraint("DistanceY", -1, 1, 0, 2, Q("40.5 mm")))
sketch11.addConstraint(Sketcher.Constraint("DistanceX", -1, 1, 0, 2, Q("42.86 mm")))
pocket6 = body.newObject("PartDesign::Pocket", "Pocket005")
pocket6.Profile = sketch11
pocket6.Length = 4

# Sketch on XZ plane
sketch12 = body.newObject("Sketcher::SketchObject", "Sketch011")
sketch12.AttachmentSupport = (doc.getObject("XZ_Plane"), [""])
sketch12.MapMode = "FlatFace"
sketch12.AttachmentOffset = App.Placement(V(0, 0, -1.5), App.Rotation())
sketch12.addGeometry(Part.LineSegment(V(43, 39, 0), V(43, 58, 0)), False)
sketch12.addGeometry(Part.LineSegment(V(43, 58, 0), V(71, 58, 0)), False)
sketch12.addGeometry(Part.LineSegment(V(71, 58, 0), V(71, 39, 0)), False)
sketch12.addGeometry(Part.LineSegment(V(71, 39, 0), V(43, 39, 0)), False)
sketch12.addConstraint(Sketcher.Constraint("Coincident", 0, 2, 1, 1))
sketch12.addConstraint(Sketcher.Constraint("Coincident", 1, 2, 2, 1))
sketch12.addConstraint(Sketcher.Constraint("Coincident", 2, 2, 3, 1))
sketch12.addConstraint(Sketcher.Constraint("Coincident", 3, 2, 0, 1))
sketch12.addConstraint(Sketcher.Constraint("Vertical", 0))
sketch12.addConstraint(Sketcher.Constraint("Horizontal", 1))
sketch12.addConstraint(Sketcher.Constraint("Vertical", 2))
sketch12.addConstraint(Sketcher.Constraint("Horizontal", 3))
sketch12.addConstraint(Sketcher.Constraint("DistanceX", 1, 1, 1, 2, Q("28 mm")))
sketch12.addConstraint(Sketcher.Constraint("DistanceY", 0, 1, 0, 2, Q("19 mm")))
sketch12.addConstraint(Sketcher.Constraint("DistanceY", -1, 1, 0, 2, Q("57.9 mm")))
sketch12.addConstraint(Sketcher.Constraint("DistanceX", -1, 1, 0, 2, Q("42.86 mm")))
pocket7 = body.newObject("PartDesign::Pocket", "Pocket006")
pocket7.Profile = sketch12
pocket7.Length = 10
pocket7.Reversed = True

# Sketch on XZ plane
sketch13 = body.newObject("Sketcher::SketchObject", "Sketch012")
sketch13.AttachmentSupport = (doc.getObject("XZ_Plane"), [""])
sketch13.MapMode = "FlatFace"
sketch13.AttachmentOffset = App.Placement(V(0, 0, -1.5), App.Rotation())
sketch13.addGeometry(Part.LineSegment(V(41, 37, 0), V(41, 68, 0)), False)
sketch13.addGeometry(Part.LineSegment(V(41, 68, 0), V(74, 68, 0)), False)
sketch13.addGeometry(Part.LineSegment(V(74, 68, 0), V(74, 37, 0)), False)
sketch13.addGeometry(Part.LineSegment(V(74, 37, 0), V(41, 37, 0)), False)
sketch13.addGeometry(Part.LineSegment(V(71, 58, 0), V(43, 58, 0)), False)
sketch13.addGeometry(Part.LineSegment(V(43, 58, 0), V(43, 39, 0)), False)
sketch13.addGeometry(Part.LineSegment(V(43, 39, 0), V(71, 39, 0)), False)
sketch13.addGeometry(Part.LineSegment(V(71, 39, 0), V(71, 58, 0)), False)
sketch13.addConstraint(Sketcher.Constraint("Coincident", 0, 2, 1, 1))
sketch13.addConstraint(Sketcher.Constraint("Coincident", 1, 2, 2, 1))
sketch13.addConstraint(Sketcher.Constraint("Coincident", 2, 2, 3, 1))
sketch13.addConstraint(Sketcher.Constraint("Coincident", 3, 2, 0, 1))
sketch13.addConstraint(Sketcher.Constraint("Coincident", 4, 2, 5, 1))
sketch13.addConstraint(Sketcher.Constraint("Coincident", 5, 2, 6, 1))
sketch13.addConstraint(Sketcher.Constraint("Coincident", 6, 2, 7, 1))
sketch13.addConstraint(Sketcher.Constraint("Coincident", 7, 2, 4, 1))
sketch13.addConstraint(Sketcher.Constraint("Vertical", 0))
sketch13.addConstraint(Sketcher.Constraint("Horizontal", 1))
sketch13.addConstraint(Sketcher.Constraint("Vertical", 2))
sketch13.addConstraint(Sketcher.Constraint("Horizontal", 3))
sketch13.addConstraint(Sketcher.Constraint("Horizontal", 4))
sketch13.addConstraint(Sketcher.Constraint("Vertical", 5))
sketch13.addConstraint(Sketcher.Constraint("Horizontal", 6))
sketch13.addConstraint(Sketcher.Constraint("Vertical", 7))
sketch13.addConstraint(Sketcher.Constraint("DistanceX", 1, 1, 1, 2, Q("33 mm")))
sketch13.addConstraint(Sketcher.Constraint("DistanceX", 4, 2, 4, 1, Q("28 mm")))
sketch13.addConstraint(Sketcher.Constraint("DistanceY", 0, 1, 0, 2, Q("31 mm")))
sketch13.addConstraint(Sketcher.Constraint("DistanceY", 5, 2, 5, 1, Q("19 mm")))
sketch13.addConstraint(Sketcher.Constraint("DistanceY", -1, 1, 0, 2, Q("67.8 mm")))
sketch13.addConstraint(Sketcher.Constraint("DistanceY", -1, 1, 4, 2, Q("57.9 mm")))
sketch13.addConstraint(Sketcher.Constraint("DistanceX", 0, 2, 4, 2, Q("2.2 mm")))
sketch13.addConstraint(Sketcher.Constraint("DistanceX", -1, 1, 0, 2, Q("40.66 mm")))
pad4 = body.newObject("PartDesign::Pad", "Pad003")
pad4.Profile = sketch13
pad4.Length = 1.5
pad4.Reversed = True

# Sketch on XZ plane
sketch14 = body.newObject("Sketcher::SketchObject", "Sketch013")
sketch14.AttachmentSupport = (doc.getObject("XZ_Plane"), [""])
sketch14.MapMode = "FlatFace"
sketch14.AttachmentOffset = App.Placement(V(0, 0, -3), App.Rotation())
sketch14.addGeometry(Part.LineSegment(V(42.9, 57.9, 0), V(42.9, 60.4, 0)), False)
sketch14.addGeometry(Part.LineSegment(V(42.9, 60.4, 0), V(70.9, 60.4, 0)), False)
sketch14.addGeometry(Part.LineSegment(V(70.9, 60.4, 0), V(70.9, 57.9, 0)), False)
sketch14.addGeometry(Part.LineSegment(V(70.9, 57.9, 0), V(42.9, 57.9, 0)), False)
sketch14.addConstraint(Sketcher.Constraint("Coincident", 0, 2, 1, 1))
sketch14.addConstraint(Sketcher.Constraint("Coincident", 1, 2, 2, 1))
sketch14.addConstraint(Sketcher.Constraint("Coincident", 2, 2, 3, 1))
sketch14.addConstraint(Sketcher.Constraint("Coincident", 3, 2, 0, 1))
sketch14.addConstraint(Sketcher.Constraint("Vertical", 0))
sketch14.addConstraint(Sketcher.Constraint("Horizontal", 1))
sketch14.addConstraint(Sketcher.Constraint("Vertical", 2))
sketch14.addConstraint(Sketcher.Constraint("Horizontal", 3))
sketch14.addConstraint(Sketcher.Constraint("DistanceX", 1, 1, 1, 2, Q("28 mm")))
sketch14.addConstraint(Sketcher.Constraint("DistanceY", 0, 1, 0, 2, Q("2.5 mm")))
sketch14.addConstraint(Sketcher.Constraint("DistanceY", -1, 1, 0, 2, Q("60.4 mm")))
sketch14.addConstraint(Sketcher.Constraint("DistanceX", -1, 1, 0, 2, Q("42.86 mm")))
pocket8 = body.newObject("PartDesign::Pocket", "Pocket007")
pocket8.Profile = sketch14
pocket8.Length = 10
pocket8.Reversed = True

# Sketch on XZ plane
sketch15 = body.newObject("Sketcher::SketchObject", "Sketch014")
sketch15.AttachmentSupport = (doc.getObject("XZ_Plane"), [""])
sketch15.MapMode = "FlatFace"
sketch15.AttachmentOffset = App.Placement(V(0, 0, -3), App.Rotation())
sketch15.addGeometry(Part.LineSegment(V(42.9, 38.9, 0), V(42.9, 41.4, 0)), False)
sketch15.addGeometry(Part.LineSegment(V(42.9, 41.4, 0), V(70.9, 41.4, 0)), False)
sketch15.addGeometry(Part.LineSegment(V(70.9, 41.4, 0), V(70.9, 38.9, 0)), False)
sketch15.addGeometry(Part.LineSegment(V(70.9, 38.9, 0), V(42.9, 38.9, 0)), False)
sketch15.addConstraint(Sketcher.Constraint("Coincident", 0, 2, 1, 1))
sketch15.addConstraint(Sketcher.Constraint("Coincident", 1, 2, 2, 1))
sketch15.addConstraint(Sketcher.Constraint("Coincident", 2, 2, 3, 1))
sketch15.addConstraint(Sketcher.Constraint("Coincident", 3, 2, 0, 1))
sketch15.addConstraint(Sketcher.Constraint("Vertical", 0))
sketch15.addConstraint(Sketcher.Constraint("Horizontal", 1))
sketch15.addConstraint(Sketcher.Constraint("Vertical", 2))
sketch15.addConstraint(Sketcher.Constraint("Horizontal", 3))
sketch15.addConstraint(Sketcher.Constraint("DistanceX", 1, 1, 1, 2, Q("28 mm")))
sketch15.addConstraint(Sketcher.Constraint("DistanceY", 0, 1, 0, 2, Q("2.5 mm")))
sketch15.addConstraint(Sketcher.Constraint("DistanceY", -1, 1, 0, 2, Q("41.4 mm")))
sketch15.addConstraint(Sketcher.Constraint("DistanceX", -1, 1, 0, 2, Q("42.86 mm")))
pad5 = body.newObject("PartDesign::Pad", "Pad004")
pad5.Profile = sketch15
pad5.Length = 3

doc.recompute()
